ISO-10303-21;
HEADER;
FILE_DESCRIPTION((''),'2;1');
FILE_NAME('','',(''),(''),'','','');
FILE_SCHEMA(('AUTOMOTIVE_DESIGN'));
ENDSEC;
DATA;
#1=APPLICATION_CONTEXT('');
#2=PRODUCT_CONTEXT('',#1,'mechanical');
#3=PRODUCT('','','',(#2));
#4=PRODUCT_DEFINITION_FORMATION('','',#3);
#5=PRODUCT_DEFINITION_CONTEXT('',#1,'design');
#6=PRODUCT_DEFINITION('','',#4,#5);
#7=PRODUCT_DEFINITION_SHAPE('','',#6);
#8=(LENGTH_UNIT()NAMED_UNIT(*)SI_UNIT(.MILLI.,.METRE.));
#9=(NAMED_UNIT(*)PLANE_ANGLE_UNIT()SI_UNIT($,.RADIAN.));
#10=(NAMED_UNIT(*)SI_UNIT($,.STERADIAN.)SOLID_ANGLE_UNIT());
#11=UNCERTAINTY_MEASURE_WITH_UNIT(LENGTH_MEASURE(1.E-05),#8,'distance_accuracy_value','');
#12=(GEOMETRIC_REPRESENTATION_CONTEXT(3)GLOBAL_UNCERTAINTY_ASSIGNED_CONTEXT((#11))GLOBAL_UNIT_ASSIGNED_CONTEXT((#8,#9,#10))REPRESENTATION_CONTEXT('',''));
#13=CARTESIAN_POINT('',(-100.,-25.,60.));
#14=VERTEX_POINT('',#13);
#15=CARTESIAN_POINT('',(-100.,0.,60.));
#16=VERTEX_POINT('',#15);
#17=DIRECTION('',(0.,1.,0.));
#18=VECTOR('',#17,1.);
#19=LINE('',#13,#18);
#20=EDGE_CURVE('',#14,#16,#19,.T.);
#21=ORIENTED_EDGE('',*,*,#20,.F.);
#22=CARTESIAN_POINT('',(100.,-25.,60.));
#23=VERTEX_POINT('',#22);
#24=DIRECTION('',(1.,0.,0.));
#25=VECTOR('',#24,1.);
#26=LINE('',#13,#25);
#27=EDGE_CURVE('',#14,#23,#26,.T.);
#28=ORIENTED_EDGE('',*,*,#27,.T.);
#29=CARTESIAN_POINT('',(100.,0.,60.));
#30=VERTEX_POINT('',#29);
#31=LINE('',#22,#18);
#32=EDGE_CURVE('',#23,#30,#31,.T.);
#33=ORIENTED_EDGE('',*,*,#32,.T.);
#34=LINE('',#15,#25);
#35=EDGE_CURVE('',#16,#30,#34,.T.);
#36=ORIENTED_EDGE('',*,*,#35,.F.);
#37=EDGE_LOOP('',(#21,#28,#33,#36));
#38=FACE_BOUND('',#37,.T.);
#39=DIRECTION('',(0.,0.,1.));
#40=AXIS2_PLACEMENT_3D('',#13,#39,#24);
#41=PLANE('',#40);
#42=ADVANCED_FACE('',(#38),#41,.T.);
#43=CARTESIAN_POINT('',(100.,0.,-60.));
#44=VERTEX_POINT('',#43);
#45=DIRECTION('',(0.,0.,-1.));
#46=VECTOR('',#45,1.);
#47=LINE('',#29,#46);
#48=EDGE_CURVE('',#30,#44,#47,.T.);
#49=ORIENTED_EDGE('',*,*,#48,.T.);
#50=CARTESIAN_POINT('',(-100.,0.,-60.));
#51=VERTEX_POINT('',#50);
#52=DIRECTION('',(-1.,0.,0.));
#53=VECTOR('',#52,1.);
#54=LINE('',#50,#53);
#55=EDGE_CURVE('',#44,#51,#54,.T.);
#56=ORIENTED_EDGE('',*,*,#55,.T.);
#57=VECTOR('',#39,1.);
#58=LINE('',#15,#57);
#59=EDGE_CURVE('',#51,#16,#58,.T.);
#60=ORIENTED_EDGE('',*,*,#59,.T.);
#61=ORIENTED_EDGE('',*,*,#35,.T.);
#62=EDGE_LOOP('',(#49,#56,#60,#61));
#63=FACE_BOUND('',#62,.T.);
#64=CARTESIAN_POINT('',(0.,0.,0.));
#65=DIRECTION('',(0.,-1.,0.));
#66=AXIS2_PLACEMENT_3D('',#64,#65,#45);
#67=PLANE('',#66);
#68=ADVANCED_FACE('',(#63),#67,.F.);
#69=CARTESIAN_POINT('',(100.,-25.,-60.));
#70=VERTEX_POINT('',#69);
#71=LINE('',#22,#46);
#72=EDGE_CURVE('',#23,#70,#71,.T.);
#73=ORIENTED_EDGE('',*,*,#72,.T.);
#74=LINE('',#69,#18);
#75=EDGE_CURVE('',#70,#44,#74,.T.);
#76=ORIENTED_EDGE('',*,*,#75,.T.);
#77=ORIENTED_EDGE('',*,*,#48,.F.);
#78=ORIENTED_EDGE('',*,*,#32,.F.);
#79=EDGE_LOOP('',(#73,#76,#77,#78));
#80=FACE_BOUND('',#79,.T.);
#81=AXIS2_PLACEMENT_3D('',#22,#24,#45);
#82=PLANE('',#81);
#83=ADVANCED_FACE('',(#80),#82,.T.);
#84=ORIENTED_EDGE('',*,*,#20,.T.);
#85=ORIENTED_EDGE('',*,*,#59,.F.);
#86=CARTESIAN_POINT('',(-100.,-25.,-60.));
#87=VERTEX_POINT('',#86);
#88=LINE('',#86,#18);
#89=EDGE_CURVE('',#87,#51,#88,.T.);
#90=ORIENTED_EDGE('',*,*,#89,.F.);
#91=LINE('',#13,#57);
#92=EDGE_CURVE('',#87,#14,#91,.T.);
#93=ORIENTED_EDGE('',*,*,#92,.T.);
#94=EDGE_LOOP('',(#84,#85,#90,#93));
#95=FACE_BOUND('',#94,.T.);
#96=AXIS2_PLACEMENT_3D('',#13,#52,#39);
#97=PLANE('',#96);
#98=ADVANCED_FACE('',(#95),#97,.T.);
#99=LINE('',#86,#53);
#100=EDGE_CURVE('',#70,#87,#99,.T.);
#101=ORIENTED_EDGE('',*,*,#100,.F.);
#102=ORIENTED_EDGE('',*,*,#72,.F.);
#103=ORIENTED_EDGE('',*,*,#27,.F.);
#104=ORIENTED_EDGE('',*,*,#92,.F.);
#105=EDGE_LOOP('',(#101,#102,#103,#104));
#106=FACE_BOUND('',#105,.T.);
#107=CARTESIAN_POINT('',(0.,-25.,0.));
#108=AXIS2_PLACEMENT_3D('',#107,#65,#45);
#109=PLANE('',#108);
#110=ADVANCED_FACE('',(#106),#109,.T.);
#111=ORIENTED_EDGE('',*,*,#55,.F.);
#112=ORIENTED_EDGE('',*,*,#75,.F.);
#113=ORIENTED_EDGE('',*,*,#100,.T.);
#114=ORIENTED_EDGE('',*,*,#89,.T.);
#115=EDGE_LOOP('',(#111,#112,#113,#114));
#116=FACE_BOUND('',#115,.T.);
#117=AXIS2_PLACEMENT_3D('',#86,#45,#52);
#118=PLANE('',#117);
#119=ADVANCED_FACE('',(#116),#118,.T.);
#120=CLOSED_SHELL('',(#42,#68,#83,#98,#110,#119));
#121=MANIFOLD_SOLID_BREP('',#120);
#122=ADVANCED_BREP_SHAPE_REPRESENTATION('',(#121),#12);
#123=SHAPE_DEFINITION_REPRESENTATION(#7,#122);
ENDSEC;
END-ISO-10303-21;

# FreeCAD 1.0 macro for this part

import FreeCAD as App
import Part
import Sketcher
from FreeCAD import Vector


def add_polygon(sketch, points):
    """Adds a closed chain of lines whose ends are joined by coincident constraints."""
    first, n = sketch.GeometryCount, len(points)
    for a, b in zip(points, points[1:] + points[:1]):
        sketch.addGeometry(Part.LineSegment(App.Vector(*a, 0), App.Vector(*b, 0)), False)
    for i in range(n):
        sketch.addConstraint(Sketcher.Constraint("Coincident", first + i, 2, first + (i + 1) % n, 1))

doc = App.newDocument("Part")
body = doc.addObject("PartDesign::Body", "Body")

sketch1 = body.newObject("Sketcher::SketchObject", "Sketch")
sketch1.AttachmentSupport = (doc.getObject("XZ_Plane"), [""])
sketch1.MapMode = "FlatFace"
add_polygon(sketch1, [(-100, -60), (-100, 60), (100, 60), (100, -60)])
sketch1.addConstraint([
    Sketcher.Constraint("Vertical", 0),
    Sketcher.Constraint("Horizontal", 1),
    Sketcher.Constraint("Vertical", 2),
    Sketcher.Constraint("Horizontal", 3),
    Sketcher.Constraint("Symmetric", 0, 2, 2, 2, -1, 1),
    Sketcher.Constraint("DistanceX", 1, 1, 1, 2, 200.0),
    Sketcher.Constraint("DistanceY", 0, 1, 0, 2, 120.0),
])
pad1 = body.newObject("PartDesign::Pad", "Pad")
pad1.Profile = sketch1
pad1.Length = 25

doc.recompute()
